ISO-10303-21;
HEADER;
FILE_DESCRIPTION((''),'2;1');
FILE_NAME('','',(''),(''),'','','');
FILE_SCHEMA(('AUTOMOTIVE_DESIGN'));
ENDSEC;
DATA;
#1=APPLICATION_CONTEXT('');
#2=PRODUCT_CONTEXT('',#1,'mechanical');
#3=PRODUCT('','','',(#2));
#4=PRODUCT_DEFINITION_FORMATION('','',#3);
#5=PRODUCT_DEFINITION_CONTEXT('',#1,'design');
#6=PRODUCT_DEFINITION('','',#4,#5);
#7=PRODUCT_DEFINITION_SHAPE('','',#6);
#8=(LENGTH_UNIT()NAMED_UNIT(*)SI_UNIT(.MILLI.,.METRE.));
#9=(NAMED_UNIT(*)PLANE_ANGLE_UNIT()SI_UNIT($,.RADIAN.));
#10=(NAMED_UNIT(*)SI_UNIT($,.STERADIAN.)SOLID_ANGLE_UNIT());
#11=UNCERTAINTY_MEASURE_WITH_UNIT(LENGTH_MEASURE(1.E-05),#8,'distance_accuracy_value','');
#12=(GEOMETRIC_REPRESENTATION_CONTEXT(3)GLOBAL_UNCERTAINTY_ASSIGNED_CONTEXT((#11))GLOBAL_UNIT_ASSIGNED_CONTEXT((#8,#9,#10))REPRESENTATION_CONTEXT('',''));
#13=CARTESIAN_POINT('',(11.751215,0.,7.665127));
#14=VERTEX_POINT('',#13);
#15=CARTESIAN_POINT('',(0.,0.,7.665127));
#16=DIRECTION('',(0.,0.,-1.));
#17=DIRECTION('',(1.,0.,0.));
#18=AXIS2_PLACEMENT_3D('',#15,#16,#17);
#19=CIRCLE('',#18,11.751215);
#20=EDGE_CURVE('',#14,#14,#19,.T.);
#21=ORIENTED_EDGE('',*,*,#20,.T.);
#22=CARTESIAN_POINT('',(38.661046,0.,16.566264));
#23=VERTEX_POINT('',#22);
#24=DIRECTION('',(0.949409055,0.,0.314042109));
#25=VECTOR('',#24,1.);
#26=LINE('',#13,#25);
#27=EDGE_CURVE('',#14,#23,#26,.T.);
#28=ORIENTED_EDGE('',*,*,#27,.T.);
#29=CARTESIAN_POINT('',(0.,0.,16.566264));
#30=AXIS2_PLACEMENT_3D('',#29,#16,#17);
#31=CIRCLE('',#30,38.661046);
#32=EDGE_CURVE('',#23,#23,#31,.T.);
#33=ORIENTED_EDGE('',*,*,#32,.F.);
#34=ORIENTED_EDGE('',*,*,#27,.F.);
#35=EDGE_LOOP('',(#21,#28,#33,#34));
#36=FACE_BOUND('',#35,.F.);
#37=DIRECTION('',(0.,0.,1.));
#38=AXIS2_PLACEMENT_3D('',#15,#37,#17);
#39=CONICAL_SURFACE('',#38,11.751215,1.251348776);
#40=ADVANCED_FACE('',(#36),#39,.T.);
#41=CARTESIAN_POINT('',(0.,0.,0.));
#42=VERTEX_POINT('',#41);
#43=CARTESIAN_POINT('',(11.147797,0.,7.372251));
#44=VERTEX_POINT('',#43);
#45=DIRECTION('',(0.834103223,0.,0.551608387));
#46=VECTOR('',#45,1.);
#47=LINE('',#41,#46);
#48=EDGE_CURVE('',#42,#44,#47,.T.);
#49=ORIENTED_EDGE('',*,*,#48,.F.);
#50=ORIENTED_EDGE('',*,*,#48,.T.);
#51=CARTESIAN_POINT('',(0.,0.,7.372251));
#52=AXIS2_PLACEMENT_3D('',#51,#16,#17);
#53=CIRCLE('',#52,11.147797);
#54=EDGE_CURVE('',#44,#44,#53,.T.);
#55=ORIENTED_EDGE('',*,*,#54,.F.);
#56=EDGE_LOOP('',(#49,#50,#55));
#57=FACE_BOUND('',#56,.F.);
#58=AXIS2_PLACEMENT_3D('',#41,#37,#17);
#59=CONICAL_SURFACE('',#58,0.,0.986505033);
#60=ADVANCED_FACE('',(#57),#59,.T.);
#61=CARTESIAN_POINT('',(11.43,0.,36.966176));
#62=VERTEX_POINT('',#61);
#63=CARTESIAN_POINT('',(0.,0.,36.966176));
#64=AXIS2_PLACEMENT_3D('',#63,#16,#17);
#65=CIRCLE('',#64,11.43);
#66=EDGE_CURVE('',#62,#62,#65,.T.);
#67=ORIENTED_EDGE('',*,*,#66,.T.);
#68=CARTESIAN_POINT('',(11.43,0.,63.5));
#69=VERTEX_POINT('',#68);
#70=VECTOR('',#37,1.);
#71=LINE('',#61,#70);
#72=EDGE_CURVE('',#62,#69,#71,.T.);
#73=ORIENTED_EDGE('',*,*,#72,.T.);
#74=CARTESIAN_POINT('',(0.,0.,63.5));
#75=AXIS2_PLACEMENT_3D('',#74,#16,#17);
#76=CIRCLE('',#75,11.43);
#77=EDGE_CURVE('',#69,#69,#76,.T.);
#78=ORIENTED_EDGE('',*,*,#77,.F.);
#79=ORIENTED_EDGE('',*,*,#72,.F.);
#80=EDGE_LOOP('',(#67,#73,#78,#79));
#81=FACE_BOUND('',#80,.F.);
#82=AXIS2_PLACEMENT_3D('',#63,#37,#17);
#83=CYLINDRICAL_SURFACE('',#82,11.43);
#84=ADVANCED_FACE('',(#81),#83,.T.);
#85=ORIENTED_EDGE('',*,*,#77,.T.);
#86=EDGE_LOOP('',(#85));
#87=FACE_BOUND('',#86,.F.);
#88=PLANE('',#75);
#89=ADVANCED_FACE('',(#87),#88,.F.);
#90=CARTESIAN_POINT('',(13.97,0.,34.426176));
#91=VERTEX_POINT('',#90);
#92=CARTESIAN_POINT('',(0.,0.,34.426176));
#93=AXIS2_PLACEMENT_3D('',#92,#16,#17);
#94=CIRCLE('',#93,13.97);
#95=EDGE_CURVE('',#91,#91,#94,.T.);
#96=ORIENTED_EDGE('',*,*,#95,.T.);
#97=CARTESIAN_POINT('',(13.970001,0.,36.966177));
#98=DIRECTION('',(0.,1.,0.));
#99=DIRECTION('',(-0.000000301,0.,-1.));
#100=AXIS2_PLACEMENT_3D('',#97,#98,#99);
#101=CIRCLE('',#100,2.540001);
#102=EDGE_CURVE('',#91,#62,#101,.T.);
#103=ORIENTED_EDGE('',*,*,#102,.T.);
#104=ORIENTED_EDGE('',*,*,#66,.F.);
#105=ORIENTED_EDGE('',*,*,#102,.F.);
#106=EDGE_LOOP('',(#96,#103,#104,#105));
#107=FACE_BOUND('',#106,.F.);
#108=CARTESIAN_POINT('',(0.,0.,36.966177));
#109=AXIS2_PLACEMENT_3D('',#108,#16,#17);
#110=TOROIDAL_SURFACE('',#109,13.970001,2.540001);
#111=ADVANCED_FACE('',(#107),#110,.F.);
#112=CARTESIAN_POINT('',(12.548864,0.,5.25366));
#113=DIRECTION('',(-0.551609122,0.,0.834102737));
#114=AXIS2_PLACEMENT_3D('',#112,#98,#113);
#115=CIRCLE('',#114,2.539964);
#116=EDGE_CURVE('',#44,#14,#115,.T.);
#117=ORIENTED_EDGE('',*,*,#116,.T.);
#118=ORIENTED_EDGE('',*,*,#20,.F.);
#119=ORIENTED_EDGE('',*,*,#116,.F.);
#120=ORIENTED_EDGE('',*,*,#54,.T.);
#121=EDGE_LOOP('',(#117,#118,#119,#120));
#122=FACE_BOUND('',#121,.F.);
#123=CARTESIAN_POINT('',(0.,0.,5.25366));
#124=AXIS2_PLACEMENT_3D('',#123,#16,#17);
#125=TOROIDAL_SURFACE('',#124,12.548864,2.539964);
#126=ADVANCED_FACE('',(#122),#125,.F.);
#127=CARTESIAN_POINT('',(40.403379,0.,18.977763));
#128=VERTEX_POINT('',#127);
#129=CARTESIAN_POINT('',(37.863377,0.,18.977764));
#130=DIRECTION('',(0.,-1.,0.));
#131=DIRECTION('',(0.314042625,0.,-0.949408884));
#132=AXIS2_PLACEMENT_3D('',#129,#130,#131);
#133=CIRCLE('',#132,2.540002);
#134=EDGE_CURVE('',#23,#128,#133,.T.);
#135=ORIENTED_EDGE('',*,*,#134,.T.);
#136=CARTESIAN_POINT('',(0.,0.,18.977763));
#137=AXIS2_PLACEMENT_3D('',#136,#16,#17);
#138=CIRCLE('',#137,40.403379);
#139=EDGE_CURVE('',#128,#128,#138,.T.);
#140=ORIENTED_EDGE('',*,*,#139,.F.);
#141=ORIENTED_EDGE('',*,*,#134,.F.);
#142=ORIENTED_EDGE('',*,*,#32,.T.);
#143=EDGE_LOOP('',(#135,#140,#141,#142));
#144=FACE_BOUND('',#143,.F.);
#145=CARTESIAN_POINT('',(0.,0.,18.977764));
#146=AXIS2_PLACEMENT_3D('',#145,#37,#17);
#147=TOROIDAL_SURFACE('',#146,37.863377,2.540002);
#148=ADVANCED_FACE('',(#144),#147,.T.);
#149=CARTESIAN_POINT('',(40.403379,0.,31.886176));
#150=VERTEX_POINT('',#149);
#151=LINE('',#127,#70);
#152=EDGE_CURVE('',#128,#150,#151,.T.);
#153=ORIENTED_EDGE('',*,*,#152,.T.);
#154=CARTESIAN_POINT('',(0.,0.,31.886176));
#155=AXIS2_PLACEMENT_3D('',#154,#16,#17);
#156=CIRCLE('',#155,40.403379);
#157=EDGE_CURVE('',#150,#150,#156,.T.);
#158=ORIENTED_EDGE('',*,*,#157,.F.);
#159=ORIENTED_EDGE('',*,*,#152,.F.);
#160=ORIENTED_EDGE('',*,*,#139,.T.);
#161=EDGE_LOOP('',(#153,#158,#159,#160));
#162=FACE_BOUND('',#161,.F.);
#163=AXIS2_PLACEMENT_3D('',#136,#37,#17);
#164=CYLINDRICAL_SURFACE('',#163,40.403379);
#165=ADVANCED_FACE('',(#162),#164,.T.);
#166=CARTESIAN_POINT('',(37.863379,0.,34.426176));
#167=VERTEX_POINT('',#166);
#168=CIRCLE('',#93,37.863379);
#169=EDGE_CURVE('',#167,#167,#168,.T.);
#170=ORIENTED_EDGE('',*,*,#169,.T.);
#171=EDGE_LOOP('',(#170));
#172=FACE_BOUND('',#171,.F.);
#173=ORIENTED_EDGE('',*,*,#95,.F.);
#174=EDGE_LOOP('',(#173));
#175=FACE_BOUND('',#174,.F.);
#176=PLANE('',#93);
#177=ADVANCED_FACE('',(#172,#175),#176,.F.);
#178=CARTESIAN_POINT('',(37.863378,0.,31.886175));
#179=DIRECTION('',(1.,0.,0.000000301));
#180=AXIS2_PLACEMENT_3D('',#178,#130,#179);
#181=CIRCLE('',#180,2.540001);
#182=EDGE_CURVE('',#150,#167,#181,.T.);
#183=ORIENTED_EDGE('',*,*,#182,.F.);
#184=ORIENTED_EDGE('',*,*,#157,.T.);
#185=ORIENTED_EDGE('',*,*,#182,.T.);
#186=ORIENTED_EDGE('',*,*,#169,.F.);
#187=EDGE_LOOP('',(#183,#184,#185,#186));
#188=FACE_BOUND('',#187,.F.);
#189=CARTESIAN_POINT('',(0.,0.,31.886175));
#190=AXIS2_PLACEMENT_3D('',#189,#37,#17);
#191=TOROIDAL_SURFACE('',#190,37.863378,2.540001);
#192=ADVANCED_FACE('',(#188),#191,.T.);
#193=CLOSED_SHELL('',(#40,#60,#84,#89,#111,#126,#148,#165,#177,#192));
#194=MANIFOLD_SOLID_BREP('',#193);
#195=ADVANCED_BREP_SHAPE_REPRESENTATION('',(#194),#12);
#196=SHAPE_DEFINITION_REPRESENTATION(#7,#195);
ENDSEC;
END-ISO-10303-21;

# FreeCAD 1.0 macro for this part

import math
import FreeCAD as App
import Part
import Sketcher

V = App.Vector
Q = App.Units.Quantity

doc = App.newDocument("Part")
params = doc.addObject("Spreadsheet::Sheet", "Params")
for row, (alias, value) in enumerate([
    ("sketch1_radius", "0.1000001 in"),
    ("sketch1_radius2", "0.1 in"),
    ("sketch1_radius3", "0.1 in"),
    ("sketch1_height", "2.5 in"),
    ("sketch1_width", "0.45 in"),
    ("revolution_angle", "360 deg"),
], start=1):
    params.set(f"A{row}", alias)
    params.set(f"B{row}", "=" + value)
    params.setAlias(f"B{row}", alias)

body = doc.addObject("PartDesign::Body", "Body")

sketch1 = body.newObject("Sketcher::SketchObject", "Sketch")
sketch1.AttachmentSupport = (doc.getObject("XZ_Plane"), [""])
sketch1.MapMode = "FlatFace"
sketch1.addGeometry(Part.ArcOfCircle(Part.Circle(V(37.863377, 18.977764, 0), V(0, 0, 1), 2.540002), math.radians(-71.696972), math.radians(-0.00003)), False)
sketch1.addGeometry(Part.LineSegment(V(40.403379, 18.977763, 0), V(40.403379, 31.886176, 0)), False)
sketch1.addGeometry(Part.ArcOfCircle(Part.Circle(V(37.863378, 31.886175, 0), V(0, 0, 1), 2.540001), math.radians(0.000017), math.radians(89.999983)), False)
sketch1.addGeometry(Part.LineSegment(V(37.863379, 34.426176, 0), V(13.97, 34.426176, 0)), False)
sketch1.addGeometry(Part.ArcOfCircle(Part.Circle(V(13.970001, 36.966177, 0), V(0, 0, 1), 2.540001), math.radians(-179.999983), math.radians(-90.000017)), False)
sketch1.addGeometry(Part.LineSegment(V(11.43, 36.966176, 0), V(11.43, 63.5, 0)), False)
sketch1.addGeometry(Part.LineSegment(V(11.43, 63.5, 0), V(0, 63.5, 0)), False)
sketch1.addGeometry(Part.LineSegment(V(0, 63.5, 0), V(0, 0, 0)), False)
sketch1.addGeometry(Part.LineSegment(V(0, 0, 0), V(11.147797, 7.372251, 0)), False)
sketch1.addGeometry(Part.ArcOfCircle(Part.Circle(V(12.548864, 5.25366, 0), V(0, 0, 1), 2.539964), math.radians(108.302847), math.radians(123.477476)), False)
sketch1.addGeometry(Part.LineSegment(V(11.751215, 7.665127, 0), V(38.661046, 16.566264, 0)), False)
sketch1.addConstraint(Sketcher.Constraint("Coincident", 0, 2, 1, 1))
sketch1.addConstraint(Sketcher.Constraint("Coincident", 1, 2, 2, 1))
sketch1.addConstraint(Sketcher.Constraint("Coincident", 2, 2, 3, 1))
sketch1.addConstraint(Sketcher.Constraint("Coincident", 3, 2, 4, 2))
sketch1.addConstraint(Sketcher.Constraint("Coincident", 4, 1, 5, 1))
sketch1.addConstraint(Sketcher.Constraint("Coincident", 5, 2, 6, 1))
sketch1.addConstraint(Sketcher.Constraint("Coincident", 6, 2, 7, 1))
sketch1.addConstraint(Sketcher.Constraint("Coincident", 7, 2, 8, 1))
sketch1.addConstraint(Sketcher.Constraint("Coincident", 8, 2, 9, 2))
sketch1.addConstraint(Sketcher.Constraint("Coincident", 9, 1, 10, 1))
sketch1.addConstraint(Sketcher.Constraint("Coincident", 10, 2, 0, 1))
sketch1.addConstraint(Sketcher.Constraint("Vertical", 1))
sketch1.addConstraint(Sketcher.Constraint("Horizontal", 3))
sketch1.addConstraint(Sketcher.Constraint("Vertical", 5))
sketch1.addConstraint(Sketcher.Constraint("Horizontal", 6))
sketch1.addConstraint(Sketcher.Constraint("Vertical", 7))
sketch1.addConstraint(Sketcher.Constraint("Coincident", 7, 2, -1, 1))
sketch1.addConstraint(Sketcher.Constraint("Radius", 0, Q("0.1000001 in")))
sketch1.addConstraint(Sketcher.Constraint("Radius", 2, Q("0.1 in")))
sketch1.addConstraint(Sketcher.Constraint("Radius", 4, Q("0.1 in")))
sketch1.addConstraint(Sketcher.Constraint("DistanceY", 7, 2, 7, 1, Q("2.5 in")))
sketch1.addConstraint(Sketcher.Constraint("DistanceX", 6, 2, 6, 1, Q("0.45 in")))
sketch1.addConstraint(Sketcher.Constraint("DistanceY", 1, 2, 4, 3, Q("0.2 in")))
sketch1.addConstraint(Sketcher.Constraint("DistanceX", 2, 2, 1, 2, Q("0.1 in")))
sketch1.addConstraint(Sketcher.Constraint("DistanceX", 4, 1, 3, 2, Q("0.1 in")))
sketch1.addConstraint(Sketcher.Constraint("DistanceY", 3, 2, 4, 1, Q("0.1 in")))
sketch1.addConstraint(Sketcher.Constraint("Radius", 9, Q("2.539964 mm")))
sketch1.addConstraint(Sketcher.Constraint("DistanceX", 3, 2, 3, 1, Q("23.893379 mm")))
sketch1.addConstraint(Sketcher.Constraint("DistanceY", 10, 2, 0, 3, Q("2.4115 mm")))
sketch1.addConstraint(Sketcher.Constraint("DistanceY", 10, 2, 0, 2, Q("2.411499 mm")))
sketch1.addConstraint(Sketcher.Constraint("Distance", 8, Q("13.365009 mm")))
sketch1.addConstraint(Sketcher.Constraint("Distance", 10, Q("28.343769 mm")))
sketch1.addConstraint(Sketcher.Constraint("DistanceY", 1, 1, 1, 2, Q("12.908413 mm")))
sketch1.addConstraint(Sketcher.Constraint("DistanceY", 5, 1, 5, 2, Q("26.533824 mm")))
sketch1.addConstraint(Sketcher.Constraint("DistanceY", -1, 1, 9, 3, Q("5.25366 mm")))
sketch1.addConstraint(Sketcher.Constraint("DistanceY", -1, 1, 8, 2, Q("7.372251 mm")))
sketch1.setExpression("Constraints[17]", "Params.sketch1_radius")
sketch1.setExpression("Constraints[18]", "Params.sketch1_radius2")
sketch1.setExpression("Constraints[19]", "Params.sketch1_radius3")
sketch1.setExpression("Constraints[20]", "Params.sketch1_height")
sketch1.setExpression("Constraints[21]", "Params.sketch1_width")
revolution = body.newObject("PartDesign::Revolution", "Revolution")
revolution.Profile = sketch1
revolution.ReferenceAxis = (sketch1, ["V_Axis"])
revolution.setExpression("Angle", "Params.revolution_angle")

doc.recompute()
